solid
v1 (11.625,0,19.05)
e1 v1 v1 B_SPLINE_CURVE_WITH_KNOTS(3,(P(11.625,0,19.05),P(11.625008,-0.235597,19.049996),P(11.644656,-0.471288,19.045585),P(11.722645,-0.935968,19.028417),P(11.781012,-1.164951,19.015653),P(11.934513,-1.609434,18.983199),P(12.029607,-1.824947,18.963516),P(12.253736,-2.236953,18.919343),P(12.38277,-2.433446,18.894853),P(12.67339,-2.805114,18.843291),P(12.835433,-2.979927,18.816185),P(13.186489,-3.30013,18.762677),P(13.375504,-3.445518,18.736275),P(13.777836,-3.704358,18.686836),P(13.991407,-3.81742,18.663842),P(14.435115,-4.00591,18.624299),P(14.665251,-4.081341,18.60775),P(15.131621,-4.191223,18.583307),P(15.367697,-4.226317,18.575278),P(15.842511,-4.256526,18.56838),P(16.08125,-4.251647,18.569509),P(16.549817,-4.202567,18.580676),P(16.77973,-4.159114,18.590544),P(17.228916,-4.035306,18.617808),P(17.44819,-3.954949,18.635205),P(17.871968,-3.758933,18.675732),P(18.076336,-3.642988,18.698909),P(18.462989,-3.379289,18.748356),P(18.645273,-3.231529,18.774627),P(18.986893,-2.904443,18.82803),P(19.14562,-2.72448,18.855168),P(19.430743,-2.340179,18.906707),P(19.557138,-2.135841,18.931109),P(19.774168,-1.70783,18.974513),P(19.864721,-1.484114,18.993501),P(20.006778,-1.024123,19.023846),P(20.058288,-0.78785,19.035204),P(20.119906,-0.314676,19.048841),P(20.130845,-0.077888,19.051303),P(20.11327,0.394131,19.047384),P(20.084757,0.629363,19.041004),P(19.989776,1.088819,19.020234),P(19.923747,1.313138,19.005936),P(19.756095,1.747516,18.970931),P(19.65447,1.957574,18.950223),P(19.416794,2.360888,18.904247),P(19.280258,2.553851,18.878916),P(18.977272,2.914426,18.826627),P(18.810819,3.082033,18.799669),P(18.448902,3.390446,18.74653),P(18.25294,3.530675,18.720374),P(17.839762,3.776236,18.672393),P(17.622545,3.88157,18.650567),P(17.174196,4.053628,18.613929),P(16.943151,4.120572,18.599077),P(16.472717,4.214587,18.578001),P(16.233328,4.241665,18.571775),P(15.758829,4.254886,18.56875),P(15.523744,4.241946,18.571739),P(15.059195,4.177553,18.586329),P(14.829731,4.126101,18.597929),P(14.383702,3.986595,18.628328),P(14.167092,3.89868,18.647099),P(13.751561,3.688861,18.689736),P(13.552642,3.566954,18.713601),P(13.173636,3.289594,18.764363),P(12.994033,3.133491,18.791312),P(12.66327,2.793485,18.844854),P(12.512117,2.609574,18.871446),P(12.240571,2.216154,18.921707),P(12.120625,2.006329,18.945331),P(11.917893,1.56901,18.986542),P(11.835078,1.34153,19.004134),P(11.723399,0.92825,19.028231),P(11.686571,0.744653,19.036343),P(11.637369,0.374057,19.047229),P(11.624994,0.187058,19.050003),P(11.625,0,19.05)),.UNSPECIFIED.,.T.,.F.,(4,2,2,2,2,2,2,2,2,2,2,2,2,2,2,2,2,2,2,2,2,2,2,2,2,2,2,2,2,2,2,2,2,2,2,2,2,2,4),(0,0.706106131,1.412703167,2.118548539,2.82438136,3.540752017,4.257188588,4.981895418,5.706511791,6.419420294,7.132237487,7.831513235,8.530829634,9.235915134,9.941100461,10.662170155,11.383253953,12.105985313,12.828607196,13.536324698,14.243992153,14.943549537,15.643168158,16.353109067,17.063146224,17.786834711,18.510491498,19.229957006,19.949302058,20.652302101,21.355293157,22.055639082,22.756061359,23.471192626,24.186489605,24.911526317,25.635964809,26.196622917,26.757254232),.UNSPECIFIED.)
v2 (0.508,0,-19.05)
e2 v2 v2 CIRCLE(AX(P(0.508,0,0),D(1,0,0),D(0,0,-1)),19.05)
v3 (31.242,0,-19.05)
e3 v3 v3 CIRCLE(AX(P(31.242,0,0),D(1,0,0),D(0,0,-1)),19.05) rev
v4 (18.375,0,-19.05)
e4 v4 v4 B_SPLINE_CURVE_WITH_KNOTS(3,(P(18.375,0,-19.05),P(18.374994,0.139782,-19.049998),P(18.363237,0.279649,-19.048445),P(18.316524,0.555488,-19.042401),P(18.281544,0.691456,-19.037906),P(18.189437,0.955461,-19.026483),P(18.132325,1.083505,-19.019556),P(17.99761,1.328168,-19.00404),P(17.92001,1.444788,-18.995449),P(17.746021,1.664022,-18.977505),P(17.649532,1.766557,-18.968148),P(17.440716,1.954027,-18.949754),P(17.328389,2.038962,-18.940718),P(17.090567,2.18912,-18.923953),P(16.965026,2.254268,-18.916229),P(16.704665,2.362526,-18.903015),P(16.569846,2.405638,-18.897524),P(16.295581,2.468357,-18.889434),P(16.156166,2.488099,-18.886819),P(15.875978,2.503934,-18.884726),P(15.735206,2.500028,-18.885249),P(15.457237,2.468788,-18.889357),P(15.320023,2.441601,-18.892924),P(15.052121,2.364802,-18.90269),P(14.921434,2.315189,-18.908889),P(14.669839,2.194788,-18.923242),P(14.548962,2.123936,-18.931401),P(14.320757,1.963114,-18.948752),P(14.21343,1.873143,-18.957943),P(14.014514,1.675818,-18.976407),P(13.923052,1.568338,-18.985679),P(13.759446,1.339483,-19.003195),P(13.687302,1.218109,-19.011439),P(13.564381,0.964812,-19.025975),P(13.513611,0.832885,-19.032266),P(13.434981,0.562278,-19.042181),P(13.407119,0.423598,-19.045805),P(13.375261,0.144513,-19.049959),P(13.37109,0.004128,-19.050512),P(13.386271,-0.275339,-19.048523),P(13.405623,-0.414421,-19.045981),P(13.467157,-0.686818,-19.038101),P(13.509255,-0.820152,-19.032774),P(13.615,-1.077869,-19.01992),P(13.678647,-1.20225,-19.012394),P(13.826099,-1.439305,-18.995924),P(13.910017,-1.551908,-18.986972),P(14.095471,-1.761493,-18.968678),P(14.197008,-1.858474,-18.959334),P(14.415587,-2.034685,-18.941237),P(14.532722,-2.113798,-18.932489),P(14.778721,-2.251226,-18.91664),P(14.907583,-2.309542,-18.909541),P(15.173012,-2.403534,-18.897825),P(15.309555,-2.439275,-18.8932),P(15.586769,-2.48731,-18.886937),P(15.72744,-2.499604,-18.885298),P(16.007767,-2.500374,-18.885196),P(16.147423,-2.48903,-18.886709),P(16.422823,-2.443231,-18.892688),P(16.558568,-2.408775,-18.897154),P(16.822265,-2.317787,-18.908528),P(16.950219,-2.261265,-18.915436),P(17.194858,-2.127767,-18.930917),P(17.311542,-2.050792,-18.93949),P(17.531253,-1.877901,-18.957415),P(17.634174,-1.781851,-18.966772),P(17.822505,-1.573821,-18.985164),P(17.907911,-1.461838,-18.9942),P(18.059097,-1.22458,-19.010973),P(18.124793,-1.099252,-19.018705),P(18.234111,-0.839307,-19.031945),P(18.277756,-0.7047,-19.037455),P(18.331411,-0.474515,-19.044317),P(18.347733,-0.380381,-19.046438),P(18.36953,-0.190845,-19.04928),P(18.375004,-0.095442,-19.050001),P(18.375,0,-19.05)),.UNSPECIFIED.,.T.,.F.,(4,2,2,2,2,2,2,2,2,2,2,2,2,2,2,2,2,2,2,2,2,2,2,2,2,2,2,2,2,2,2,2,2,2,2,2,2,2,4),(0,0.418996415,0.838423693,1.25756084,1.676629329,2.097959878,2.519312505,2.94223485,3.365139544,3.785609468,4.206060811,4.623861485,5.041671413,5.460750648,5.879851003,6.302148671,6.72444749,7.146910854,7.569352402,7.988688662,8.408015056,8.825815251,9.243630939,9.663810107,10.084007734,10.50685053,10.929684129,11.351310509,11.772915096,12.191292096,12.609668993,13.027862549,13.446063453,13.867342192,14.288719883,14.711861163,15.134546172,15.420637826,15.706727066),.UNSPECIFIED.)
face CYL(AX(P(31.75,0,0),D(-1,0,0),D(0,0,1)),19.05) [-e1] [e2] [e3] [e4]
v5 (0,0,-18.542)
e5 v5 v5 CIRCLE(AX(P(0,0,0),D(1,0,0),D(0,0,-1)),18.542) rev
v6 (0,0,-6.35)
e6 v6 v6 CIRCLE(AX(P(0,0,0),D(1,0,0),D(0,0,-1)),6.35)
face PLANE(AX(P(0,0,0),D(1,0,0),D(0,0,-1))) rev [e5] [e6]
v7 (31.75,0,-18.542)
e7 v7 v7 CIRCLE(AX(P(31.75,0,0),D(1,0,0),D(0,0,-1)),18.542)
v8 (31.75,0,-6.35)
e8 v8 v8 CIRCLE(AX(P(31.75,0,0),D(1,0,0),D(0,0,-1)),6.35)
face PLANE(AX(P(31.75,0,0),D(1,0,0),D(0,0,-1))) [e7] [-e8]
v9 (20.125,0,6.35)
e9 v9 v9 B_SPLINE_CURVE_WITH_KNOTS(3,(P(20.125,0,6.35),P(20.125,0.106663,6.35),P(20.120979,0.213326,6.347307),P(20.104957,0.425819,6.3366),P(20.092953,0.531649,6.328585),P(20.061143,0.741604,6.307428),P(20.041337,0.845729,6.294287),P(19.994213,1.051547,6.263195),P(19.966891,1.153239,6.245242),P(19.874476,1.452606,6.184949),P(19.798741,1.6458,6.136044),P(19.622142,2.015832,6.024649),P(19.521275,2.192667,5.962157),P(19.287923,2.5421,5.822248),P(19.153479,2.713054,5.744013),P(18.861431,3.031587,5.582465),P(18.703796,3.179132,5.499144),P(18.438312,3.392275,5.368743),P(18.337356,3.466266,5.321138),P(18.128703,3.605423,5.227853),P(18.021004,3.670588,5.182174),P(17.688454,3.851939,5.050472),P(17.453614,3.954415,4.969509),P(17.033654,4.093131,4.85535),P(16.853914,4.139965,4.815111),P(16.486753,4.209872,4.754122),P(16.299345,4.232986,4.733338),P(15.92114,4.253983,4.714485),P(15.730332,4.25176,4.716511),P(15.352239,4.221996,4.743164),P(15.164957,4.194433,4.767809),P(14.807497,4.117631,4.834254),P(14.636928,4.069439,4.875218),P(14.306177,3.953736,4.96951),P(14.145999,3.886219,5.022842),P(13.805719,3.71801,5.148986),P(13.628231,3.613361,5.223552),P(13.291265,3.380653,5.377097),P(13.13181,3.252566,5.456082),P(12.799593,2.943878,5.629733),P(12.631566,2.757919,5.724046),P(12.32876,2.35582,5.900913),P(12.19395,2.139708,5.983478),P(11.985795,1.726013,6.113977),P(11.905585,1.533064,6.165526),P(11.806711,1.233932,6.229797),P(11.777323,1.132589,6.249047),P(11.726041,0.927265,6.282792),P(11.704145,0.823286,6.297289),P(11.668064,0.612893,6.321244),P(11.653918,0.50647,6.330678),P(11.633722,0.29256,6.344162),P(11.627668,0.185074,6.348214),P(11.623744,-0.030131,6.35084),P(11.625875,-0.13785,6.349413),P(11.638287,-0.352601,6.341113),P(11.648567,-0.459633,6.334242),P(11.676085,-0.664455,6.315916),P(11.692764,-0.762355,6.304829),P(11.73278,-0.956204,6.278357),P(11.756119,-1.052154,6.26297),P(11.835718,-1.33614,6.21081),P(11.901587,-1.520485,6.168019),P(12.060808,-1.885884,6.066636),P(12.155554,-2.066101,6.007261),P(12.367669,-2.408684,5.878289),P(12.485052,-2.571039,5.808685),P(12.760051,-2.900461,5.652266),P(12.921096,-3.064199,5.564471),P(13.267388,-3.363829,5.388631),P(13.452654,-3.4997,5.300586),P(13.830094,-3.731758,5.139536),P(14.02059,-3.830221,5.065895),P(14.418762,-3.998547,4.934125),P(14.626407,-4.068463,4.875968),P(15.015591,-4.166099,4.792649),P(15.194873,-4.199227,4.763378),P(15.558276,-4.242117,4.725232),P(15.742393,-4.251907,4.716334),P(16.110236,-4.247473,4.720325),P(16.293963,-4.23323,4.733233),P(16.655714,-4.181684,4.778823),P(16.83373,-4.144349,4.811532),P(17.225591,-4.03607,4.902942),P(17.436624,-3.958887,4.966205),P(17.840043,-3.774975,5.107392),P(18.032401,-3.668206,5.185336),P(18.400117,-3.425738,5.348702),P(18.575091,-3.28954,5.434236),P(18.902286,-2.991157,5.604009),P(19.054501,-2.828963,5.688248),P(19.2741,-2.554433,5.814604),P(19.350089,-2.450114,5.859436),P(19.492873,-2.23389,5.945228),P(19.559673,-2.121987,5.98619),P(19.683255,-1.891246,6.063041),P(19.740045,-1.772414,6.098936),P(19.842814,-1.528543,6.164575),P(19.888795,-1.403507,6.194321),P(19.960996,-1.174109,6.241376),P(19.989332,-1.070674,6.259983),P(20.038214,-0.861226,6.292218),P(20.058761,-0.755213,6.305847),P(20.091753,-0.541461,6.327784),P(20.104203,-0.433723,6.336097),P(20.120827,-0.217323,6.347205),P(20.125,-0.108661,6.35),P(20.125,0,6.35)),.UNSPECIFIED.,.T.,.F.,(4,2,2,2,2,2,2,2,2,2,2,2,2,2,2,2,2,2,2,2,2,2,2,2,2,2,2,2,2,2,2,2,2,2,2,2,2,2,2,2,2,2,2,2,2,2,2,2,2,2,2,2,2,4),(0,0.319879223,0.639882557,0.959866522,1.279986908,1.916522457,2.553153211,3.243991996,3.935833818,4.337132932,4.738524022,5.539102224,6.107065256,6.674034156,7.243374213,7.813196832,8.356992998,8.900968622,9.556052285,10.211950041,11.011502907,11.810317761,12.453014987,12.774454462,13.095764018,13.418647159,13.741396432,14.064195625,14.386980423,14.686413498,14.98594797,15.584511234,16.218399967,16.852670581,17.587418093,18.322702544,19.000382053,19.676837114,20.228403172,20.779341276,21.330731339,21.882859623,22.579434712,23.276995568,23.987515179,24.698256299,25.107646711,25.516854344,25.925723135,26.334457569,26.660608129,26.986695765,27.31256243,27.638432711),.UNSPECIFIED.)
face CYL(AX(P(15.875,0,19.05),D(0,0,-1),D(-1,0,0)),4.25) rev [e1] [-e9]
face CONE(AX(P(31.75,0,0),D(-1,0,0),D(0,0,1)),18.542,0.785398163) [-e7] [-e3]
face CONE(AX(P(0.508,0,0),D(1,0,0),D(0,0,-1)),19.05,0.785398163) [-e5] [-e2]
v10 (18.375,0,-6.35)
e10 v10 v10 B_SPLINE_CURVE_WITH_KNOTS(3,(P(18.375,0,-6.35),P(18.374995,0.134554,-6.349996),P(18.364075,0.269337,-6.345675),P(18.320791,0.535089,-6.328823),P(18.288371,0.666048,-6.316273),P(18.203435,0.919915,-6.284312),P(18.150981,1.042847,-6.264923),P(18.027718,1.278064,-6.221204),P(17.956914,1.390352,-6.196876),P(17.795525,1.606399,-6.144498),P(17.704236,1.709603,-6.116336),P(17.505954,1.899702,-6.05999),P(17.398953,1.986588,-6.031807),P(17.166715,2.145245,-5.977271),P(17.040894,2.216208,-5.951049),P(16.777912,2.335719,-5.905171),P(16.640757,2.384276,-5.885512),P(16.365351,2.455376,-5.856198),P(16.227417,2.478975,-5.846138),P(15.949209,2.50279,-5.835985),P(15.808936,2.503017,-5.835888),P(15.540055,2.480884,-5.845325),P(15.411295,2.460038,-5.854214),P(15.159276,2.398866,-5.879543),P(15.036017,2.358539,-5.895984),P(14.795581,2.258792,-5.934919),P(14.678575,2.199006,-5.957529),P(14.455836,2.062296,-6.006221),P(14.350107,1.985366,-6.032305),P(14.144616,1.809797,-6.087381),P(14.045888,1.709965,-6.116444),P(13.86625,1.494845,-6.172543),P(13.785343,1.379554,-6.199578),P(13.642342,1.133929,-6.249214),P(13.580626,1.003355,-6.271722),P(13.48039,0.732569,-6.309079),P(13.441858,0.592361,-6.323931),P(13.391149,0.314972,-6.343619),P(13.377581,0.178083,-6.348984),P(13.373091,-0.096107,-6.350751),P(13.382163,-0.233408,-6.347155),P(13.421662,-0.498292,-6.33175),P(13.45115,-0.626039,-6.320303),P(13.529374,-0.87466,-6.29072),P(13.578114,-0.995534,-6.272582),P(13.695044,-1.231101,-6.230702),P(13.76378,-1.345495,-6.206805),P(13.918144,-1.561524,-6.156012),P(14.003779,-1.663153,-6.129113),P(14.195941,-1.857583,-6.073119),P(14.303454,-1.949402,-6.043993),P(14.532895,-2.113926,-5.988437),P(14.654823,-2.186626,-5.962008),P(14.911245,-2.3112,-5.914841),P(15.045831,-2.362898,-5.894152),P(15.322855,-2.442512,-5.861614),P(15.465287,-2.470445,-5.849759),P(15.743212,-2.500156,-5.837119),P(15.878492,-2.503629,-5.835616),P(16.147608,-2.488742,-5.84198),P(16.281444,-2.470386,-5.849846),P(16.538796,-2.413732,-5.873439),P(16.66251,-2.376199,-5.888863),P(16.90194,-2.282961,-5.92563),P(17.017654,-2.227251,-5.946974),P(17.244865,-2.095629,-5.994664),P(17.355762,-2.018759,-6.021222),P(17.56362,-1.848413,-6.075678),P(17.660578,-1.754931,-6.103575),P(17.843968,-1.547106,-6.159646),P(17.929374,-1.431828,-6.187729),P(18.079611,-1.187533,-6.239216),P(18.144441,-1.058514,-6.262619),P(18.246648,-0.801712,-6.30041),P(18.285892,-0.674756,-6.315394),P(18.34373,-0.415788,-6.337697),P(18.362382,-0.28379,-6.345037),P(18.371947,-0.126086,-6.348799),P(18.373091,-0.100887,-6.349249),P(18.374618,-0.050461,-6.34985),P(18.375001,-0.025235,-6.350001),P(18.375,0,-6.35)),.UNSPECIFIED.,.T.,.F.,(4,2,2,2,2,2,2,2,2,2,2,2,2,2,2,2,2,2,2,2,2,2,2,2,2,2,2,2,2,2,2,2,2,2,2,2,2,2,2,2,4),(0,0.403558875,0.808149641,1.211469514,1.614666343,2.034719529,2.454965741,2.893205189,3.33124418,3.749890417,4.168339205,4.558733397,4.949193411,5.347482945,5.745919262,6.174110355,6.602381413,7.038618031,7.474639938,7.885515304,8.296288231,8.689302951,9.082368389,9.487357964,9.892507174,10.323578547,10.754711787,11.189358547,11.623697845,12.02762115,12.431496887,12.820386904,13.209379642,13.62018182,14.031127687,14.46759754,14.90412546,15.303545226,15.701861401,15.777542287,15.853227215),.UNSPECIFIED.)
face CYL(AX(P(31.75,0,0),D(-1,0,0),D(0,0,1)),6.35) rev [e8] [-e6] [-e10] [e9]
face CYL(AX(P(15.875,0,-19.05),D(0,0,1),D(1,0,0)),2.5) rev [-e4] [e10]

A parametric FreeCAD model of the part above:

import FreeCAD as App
import Part
import Sketcher

V = App.Vector
Q = App.Units.Quantity


def edges_at(feature, points):
    """Names of the edges that pass closest to the given points."""
    edges = feature.Shape.Edges
    near = lambda p: min(range(len(edges)), key=lambda i: edges[i].distToShape(Part.Vertex(*p))[0])
    return sorted({f"Edge{near(p) + 1}" for p in points})

doc = App.newDocument("Part")
body = doc.addObject("PartDesign::Body", "Body")

# Sketch on YZ plane
sketch1 = doc.addObject("Sketcher::SketchObject", "Sketch")
body.addObject(sketch1)
sketch1.AttachmentSupport = (doc.YZ_Plane, [""])
sketch1.MapMode = "FlatFace"
sketch1.addGeometry([
    Part.Circle(V(0, 0, 0), V(0, 0, 1), 19),
    Part.Circle(V(0, 0, 0), V(0, 0, 1), 6),
], False)
sketch1.addConstraint([
    Sketcher.Constraint("Coincident", 0, 3, -1, 1),
    Sketcher.Constraint("Coincident", 1, 3, -1, 1),
    Sketcher.Constraint("Diameter", 0, Q("1.5 in")),
    Sketcher.Constraint("Diameter", 1, Q("0.5 in")),
])
pad1 = doc.addObject("PartDesign::Pad", "Pad")
body.addObject(pad1)
pad1.Profile = sketch1
pad1.Length = Q("1.25 in")

# Sketch on XY plane
sketch2 = doc.addObject("Sketcher::SketchObject", "Sketch001")
body.addObject(sketch2)
sketch2.AttachmentSupport = (doc.XY_Plane, [""])
sketch2.MapMode = "FlatFace"
sketch2.addGeometry(Part.Circle(V(15.9, 0, 0), V(0, 0, 1), 4.2), False)
sketch2.addConstraint([
    Sketcher.Constraint("PointOnObject", 0, 3, -1),
    Sketcher.Constraint("Diameter", 0, 8.5),
    Sketcher.Constraint("DistanceX", -1, 1, 0, 3, Q("0.625 in")),
])
pocket1 = doc.addObject("PartDesign::Pocket", "Pocket")
body.addObject(pocket1)
pocket1.Profile = sketch2
pocket1.Type = "ThroughAll"
pocket1.Reversed = True

# Sketch on XY plane
sketch3 = doc.addObject("Sketcher::SketchObject", "Sketch002")
body.addObject(sketch3)
sketch3.AttachmentSupport = (doc.XY_Plane, [""])
sketch3.MapMode = "FlatFace"
sketch3.addGeometry(Part.Circle(V(15.9, 0, 0), V(0, 0, 1), 2.5), False)
sketch3.addConstraint([
    Sketcher.Constraint("PointOnObject", 0, 3, -1),
    Sketcher.Constraint("Diameter", 0, 5.0),
    Sketcher.Constraint("DistanceX", -1, 1, 0, 3, Q("0.625 in")),
])
pocket2 = doc.addObject("PartDesign::Pocket", "Pocket001")
body.addObject(pocket2)
pocket2.Profile = sketch3
pocket2.Type = "ThroughAll"
doc.recompute()

chamfer = doc.addObject("PartDesign::Chamfer", "Chamfer")
body.addObject(chamfer)
chamfer.Base = (pocket2, edges_at(pocket2, [(0, 0, 19.05), (31.75, 0, 19.05)]))
chamfer.Size = Q("0.02 in")

doc.recompute()
